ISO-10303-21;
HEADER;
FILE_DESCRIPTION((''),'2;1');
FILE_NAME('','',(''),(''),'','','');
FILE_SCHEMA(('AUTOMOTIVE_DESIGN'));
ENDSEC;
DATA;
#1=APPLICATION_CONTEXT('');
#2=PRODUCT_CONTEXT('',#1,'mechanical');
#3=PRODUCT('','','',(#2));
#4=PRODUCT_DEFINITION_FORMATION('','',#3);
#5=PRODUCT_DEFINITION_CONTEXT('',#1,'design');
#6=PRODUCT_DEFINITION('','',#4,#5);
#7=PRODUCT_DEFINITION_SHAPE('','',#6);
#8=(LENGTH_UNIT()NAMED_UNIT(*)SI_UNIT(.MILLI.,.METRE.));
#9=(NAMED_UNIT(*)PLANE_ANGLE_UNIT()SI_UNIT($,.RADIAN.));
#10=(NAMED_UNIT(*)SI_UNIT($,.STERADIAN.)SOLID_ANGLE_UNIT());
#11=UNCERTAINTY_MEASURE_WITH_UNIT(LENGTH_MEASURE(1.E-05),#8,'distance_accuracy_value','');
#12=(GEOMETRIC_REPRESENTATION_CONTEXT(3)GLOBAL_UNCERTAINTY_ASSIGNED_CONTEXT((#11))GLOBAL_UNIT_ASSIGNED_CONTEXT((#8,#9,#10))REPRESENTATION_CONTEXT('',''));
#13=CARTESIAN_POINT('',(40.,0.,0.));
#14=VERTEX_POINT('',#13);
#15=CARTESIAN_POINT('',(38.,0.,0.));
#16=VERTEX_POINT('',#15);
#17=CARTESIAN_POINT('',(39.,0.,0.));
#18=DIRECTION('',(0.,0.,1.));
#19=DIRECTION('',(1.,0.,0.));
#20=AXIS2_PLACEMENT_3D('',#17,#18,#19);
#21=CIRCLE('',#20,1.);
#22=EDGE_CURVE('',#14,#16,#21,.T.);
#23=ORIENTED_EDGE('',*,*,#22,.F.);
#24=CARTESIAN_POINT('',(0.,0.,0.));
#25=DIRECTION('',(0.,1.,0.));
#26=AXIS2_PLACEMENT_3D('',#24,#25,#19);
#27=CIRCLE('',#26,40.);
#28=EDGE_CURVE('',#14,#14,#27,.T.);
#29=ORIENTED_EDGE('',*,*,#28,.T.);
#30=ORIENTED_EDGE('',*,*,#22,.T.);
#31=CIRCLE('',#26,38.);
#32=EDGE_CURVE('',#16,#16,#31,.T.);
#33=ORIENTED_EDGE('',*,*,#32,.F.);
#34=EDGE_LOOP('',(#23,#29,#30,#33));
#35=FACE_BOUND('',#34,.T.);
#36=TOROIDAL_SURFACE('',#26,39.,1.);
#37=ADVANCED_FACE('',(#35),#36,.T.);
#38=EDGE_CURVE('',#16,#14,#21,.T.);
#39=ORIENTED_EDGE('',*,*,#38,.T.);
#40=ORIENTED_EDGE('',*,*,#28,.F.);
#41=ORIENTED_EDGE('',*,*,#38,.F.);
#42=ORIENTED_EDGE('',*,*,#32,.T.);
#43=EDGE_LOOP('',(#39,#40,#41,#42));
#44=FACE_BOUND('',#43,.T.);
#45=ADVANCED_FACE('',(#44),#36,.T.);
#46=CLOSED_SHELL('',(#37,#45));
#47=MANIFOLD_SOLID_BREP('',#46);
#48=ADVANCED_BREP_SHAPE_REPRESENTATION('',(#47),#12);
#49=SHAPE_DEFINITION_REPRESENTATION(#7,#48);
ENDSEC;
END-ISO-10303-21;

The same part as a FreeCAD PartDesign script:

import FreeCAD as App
import Part
import Sketcher
from FreeCAD import Vector
Q = App.Units.Quantity

doc = App.newDocument("Part")
body = doc.addObject("PartDesign::Body", "Body")

# Sketch on XY plane
sketch1 = body.newObject("Sketcher::SketchObject", "Sketch")
sketch1.AttachmentSupport = (doc.getObject("XY_Plane"), [""])
sketch1.MapMode = "FlatFace"
sketch1.addGeometry(Part.Circle(Vector(39, 0, 0), Vector(0, 0, 1), 1), False)
sketch1.addConstraint(Sketcher.Constraint("PointOnObject", 0, 3, -1))
sketch1.addConstraint(Sketcher.Constraint("Diameter", 0, Q("2 mm")))
sketch1.addConstraint(Sketcher.Constraint("DistanceX", -1, 1, 0, 3, Q("39 mm")))
revolution = body.newObject("PartDesign::Revolution", "Revolution")
revolution.Profile = sketch1
revolution.ReferenceAxis = (sketch1, ["V_Axis"])
revolution.Angle = 360

doc.recompute()
